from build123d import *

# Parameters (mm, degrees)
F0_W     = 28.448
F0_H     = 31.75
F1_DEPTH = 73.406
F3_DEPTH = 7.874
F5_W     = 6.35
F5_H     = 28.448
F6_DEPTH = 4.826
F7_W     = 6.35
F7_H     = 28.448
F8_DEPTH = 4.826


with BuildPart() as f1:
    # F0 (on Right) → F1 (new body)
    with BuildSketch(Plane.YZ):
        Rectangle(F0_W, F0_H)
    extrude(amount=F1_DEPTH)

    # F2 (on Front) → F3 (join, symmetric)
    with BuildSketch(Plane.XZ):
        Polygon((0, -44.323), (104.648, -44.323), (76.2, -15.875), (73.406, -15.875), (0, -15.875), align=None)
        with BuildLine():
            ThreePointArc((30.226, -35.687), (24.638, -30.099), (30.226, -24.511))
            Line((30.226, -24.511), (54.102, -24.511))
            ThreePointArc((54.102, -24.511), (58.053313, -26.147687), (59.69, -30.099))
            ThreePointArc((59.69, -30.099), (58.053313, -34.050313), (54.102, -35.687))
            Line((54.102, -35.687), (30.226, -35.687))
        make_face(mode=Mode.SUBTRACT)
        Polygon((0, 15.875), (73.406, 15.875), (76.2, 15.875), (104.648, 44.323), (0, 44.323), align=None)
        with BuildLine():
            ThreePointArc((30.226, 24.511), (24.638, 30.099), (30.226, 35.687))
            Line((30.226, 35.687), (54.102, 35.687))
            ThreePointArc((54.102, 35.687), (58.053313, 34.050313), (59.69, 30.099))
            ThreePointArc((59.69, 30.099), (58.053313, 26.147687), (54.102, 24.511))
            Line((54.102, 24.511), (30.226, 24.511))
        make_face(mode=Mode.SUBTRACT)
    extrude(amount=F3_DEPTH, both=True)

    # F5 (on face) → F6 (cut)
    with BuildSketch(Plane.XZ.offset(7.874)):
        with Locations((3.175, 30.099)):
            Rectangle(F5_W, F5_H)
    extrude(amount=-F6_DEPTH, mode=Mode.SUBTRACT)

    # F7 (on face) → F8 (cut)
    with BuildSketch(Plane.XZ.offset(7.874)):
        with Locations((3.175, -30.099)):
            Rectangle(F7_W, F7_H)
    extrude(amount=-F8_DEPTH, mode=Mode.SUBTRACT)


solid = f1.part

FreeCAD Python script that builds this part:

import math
import FreeCAD as App
import Part
import Sketcher
Q = App.Units.Quantity


def add_polygon(sketch, points):
    """Adds a closed chain of lines whose ends are joined by coincident constraints."""
    first, n = sketch.GeometryCount, len(points)
    for a, b in zip(points, points[1:] + points[:1]):
        sketch.addGeometry(Part.LineSegment(App.Vector(*a, 0), App.Vector(*b, 0)), False)
    for i in range(n):
        sketch.addConstraint(Sketcher.Constraint("Coincident", first + i, 2, first + (i + 1) % n, 1))

doc = App.newDocument("Part")
params = doc.addObject("Spreadsheet::Sheet", "Params")
for row, (alias, value) in enumerate([
    ("sketch1_width", "1.12 in"),
    ("sketch1_height", "1.25 in"),
    ("pad1_length", "2.89 in"),
    ("sketch2_width", "3 in"),
    ("sketch2_radius", "0.22 in"),
    ("sketch2_width2", "4.12 in"),
    ("sketch2_width3", "0.94 in"),
    ("pad2_length", "0.62 in"),
    ("sketch3_width", "0.25 in"),
    ("sketch3_height", "1.12 in"),
    ("pocket1_length", "0.19 in"),
    ("sketch4_width", "0.25 in"),
    ("sketch4_height", "1.12 in"),
    ("pocket2_length", "0.19 in"),
], start=1):
    params.set(f"A{row}", alias)
    params.set(f"B{row}", "=" + value)
    params.setAlias(f"B{row}", alias)

body = doc.addObject("PartDesign::Body", "Body")

# Sketch on YZ plane
sketch1 = body.newObject("Sketcher::SketchObject", "Sketch")
sketch1.AttachmentSupport = (doc.getObject("YZ_Plane"), [""])
sketch1.MapMode = "FlatFace"
add_polygon(sketch1, [(-14, 16), (-14, -16), (14, -16), (14, 16)])  # lines 0-3
sketch1.addConstraint([
    Sketcher.Constraint("Vertical", 0),
    Sketcher.Constraint("Horizontal", 1),
    Sketcher.Constraint("Vertical", 2),
    Sketcher.Constraint("Horizontal", 3),
    Sketcher.Constraint("Symmetric", 0, 2, 2, 2, -1, 1),
    Sketcher.Constraint("DistanceX", 1, 1, 1, 2, Q("1.12 in")),
    Sketcher.Constraint("DistanceY", 0, 2, 0, 1, Q("1.25 in")),
])
sketch1.setExpression("Constraints[9]", "Params.sketch1_width")
sketch1.setExpression("Constraints[10]", "Params.sketch1_height")
pad1 = body.newObject("PartDesign::Pad", "Pad")
pad1.Profile = sketch1
pad1.setExpression("Length", "Params.pad1_length")

# Sketch on XZ plane
sketch2 = body.newObject("Sketcher::SketchObject", "Sketch001")
sketch2.AttachmentSupport = (doc.getObject("XZ_Plane"), [""])
sketch2.MapMode = "FlatFace"
add_polygon(sketch2, [(0, -44), (105, -44), (76, -16), (0, -16)])  # lines 0-3
sketch2.addGeometry(Part.LineSegment(App.Vector(54, -36, 0), App.Vector(30, -36, 0)), False)  # 4
sketch2.addGeometry(Part.ArcOfCircle(Part.Circle(App.Vector(30, -30, 0), App.Vector(0, 0, 1), 6), math.radians(90), math.radians(270)), False)  # 5
sketch2.addGeometry(Part.LineSegment(App.Vector(30, -25, 0), App.Vector(54, -25, 0)), False)  # 6
sketch2.addGeometry(Part.ArcOfCircle(Part.Circle(App.Vector(54, -30, 0), App.Vector(0, 0, 1), 6), math.radians(0), math.radians(90)), False)  # 7
sketch2.addGeometry(Part.ArcOfCircle(Part.Circle(App.Vector(54, -30, 0), App.Vector(0, 0, 1), 6), math.radians(-90), math.radians(0)), False)  # 8
add_polygon(sketch2, [(0, 16), (76, 16), (105, 44), (0, 44)])  # lines 9-12
sketch2.addGeometry(Part.LineSegment(App.Vector(54, 25, 0), App.Vector(30, 25, 0)), False)  # 13
sketch2.addGeometry(Part.ArcOfCircle(Part.Circle(App.Vector(30, 30, 0), App.Vector(0, 0, 1), 6), math.radians(90), math.radians(270)), False)  # 14
sketch2.addGeometry(Part.LineSegment(App.Vector(30, 36, 0), App.Vector(54, 36, 0)), False)  # 15
sketch2.addGeometry(Part.ArcOfCircle(Part.Circle(App.Vector(54, 30, 0), App.Vector(0, 0, 1), 6), math.radians(0), math.radians(90)), False)  # 16
sketch2.addGeometry(Part.ArcOfCircle(Part.Circle(App.Vector(54, 30, 0), App.Vector(0, 0, 1), 6), math.radians(-90), math.radians(0)), False)  # 17
sketch2.addConstraint([
    Sketcher.Constraint("Tangent", 4, 2, 5, 2),
    Sketcher.Constraint("Tangent", 5, 1, 6, 1),
    Sketcher.Constraint("Tangent", 6, 2, 7, 2),
    Sketcher.Constraint("Tangent", 7, 1, 8, 2),
    Sketcher.Constraint("Tangent", 8, 1, 4, 1),
    Sketcher.Constraint("Tangent", 13, 2, 14, 2),
    Sketcher.Constraint("Tangent", 14, 1, 15, 1),
    Sketcher.Constraint("Tangent", 15, 2, 16, 2),
    Sketcher.Constraint("Tangent", 16, 1, 17, 2),
    Sketcher.Constraint("Tangent", 17, 1, 13, 1),
    Sketcher.Constraint("Horizontal", 0),
    Sketcher.Constraint("Horizontal", 2),
    Sketcher.Constraint("Vertical", 3),
    Sketcher.Constraint("Horizontal", 4),
    Sketcher.Constraint("Horizontal", 6),
    Sketcher.Constraint("Horizontal", 9),
    Sketcher.Constraint("Horizontal", 11),
    Sketcher.Constraint("Vertical", 12),
    Sketcher.Constraint("Horizontal", 13),
    Sketcher.Constraint("Horizontal", 15),
    Sketcher.Constraint("Equal", 5, 7),
    Sketcher.Constraint("Equal", 8, 14),
    Sketcher.Constraint("Equal", 14, 16),
    Sketcher.Constraint("Symmetric", 3, 2, 11, 2, -1, 1),
    Sketcher.Constraint("Symmetric", 5, 3, 14, 3, -1),
    Sketcher.Constraint("Symmetric", 1, 2, 9, 2, -1),
    Sketcher.Constraint("Symmetric", 7, 1, 16, 1, -1),
    Sketcher.Constraint("PointOnObject", 2, 2, -2),
    Sketcher.Constraint("Perpendicular", 1, 10),
    Sketcher.Constraint("Horizontal", 8, 3, 7, 1),
    Sketcher.Constraint("Vertical", 0, 2, 10, 2),
    Sketcher.Constraint("DistanceX", 2, 2, 2, 1, Q("3 in")),
    Sketcher.Constraint("Radius", 5, Q("0.22 in")),
    Sketcher.Constraint("DistanceX", 0, 1, 0, 2, Q("4.12 in")),
    Sketcher.Constraint("DistanceX", 4, 2, 4, 1, Q("0.94 in")),
    Sketcher.Constraint("DistanceX", -1, 1, 5, 3, Q("1.19 in")),
    Sketcher.Constraint("DistanceY", 5, 3, 14, 3, Q("2.37 in")),
    Sketcher.Constraint("DistanceY", 0, 2, 8, 3, Q("0.56 in")),
])
sketch2.setExpression("Constraints[39]", "Params.sketch2_width")
sketch2.setExpression("Constraints[40]", "Params.sketch2_radius")
sketch2.setExpression("Constraints[41]", "Params.sketch2_width2")
sketch2.setExpression("Constraints[42]", "Params.sketch2_width3")
pad2 = body.newObject("PartDesign::Pad", "Pad001")
pad2.Profile = sketch2
pad2.setExpression("Length", "Params.pad2_length")
pad2.Midplane = True

# Sketch on XZ plane
sketch3 = body.newObject("Sketcher::SketchObject", "Sketch002")
sketch3.AttachmentSupport = (doc.getObject("XZ_Plane"), [""])
sketch3.MapMode = "FlatFace"
sketch3.AttachmentOffset = App.Placement(App.Vector(0, 0, 0.31 * 25.4), App.Rotation())
add_polygon(sketch3, [(0, 44), (0, 16), (6, 16), (6, 44)])  # lines 0-3
sketch3.addConstraint([
    Sketcher.Constraint("Vertical", 0),
    Sketcher.Constraint("Horizontal", 1),
    Sketcher.Constraint("Vertical", 2),
    Sketcher.Constraint("Horizontal", 3),
    Sketcher.Constraint("PointOnObject", 0, 2, -2),
    Sketcher.Constraint("DistanceX", 1, 1, 1, 2, Q("0.25 in")),
    Sketcher.Constraint("DistanceY", 0, 2, 0, 1, Q("1.12 in")),
    Sketcher.Constraint("DistanceY", -1, 1, 0, 2, Q("0.625 in")),
])
sketch3.setExpression("Constraints[9]", "Params.sketch3_width")
sketch3.setExpression("Constraints[10]", "Params.sketch3_height")
pocket1 = body.newObject("PartDesign::Pocket", "Pocket")
pocket1.Profile = sketch3
pocket1.setExpression("Length", "Params.pocket1_length")

# Sketch on XZ plane
sketch4 = body.newObject("Sketcher::SketchObject", "Sketch003")
sketch4.AttachmentSupport = (doc.getObject("XZ_Plane"), [""])
sketch4.MapMode = "FlatFace"
sketch4.AttachmentOffset = App.Placement(App.Vector(0, 0, 0.31 * 25.4), App.Rotation())
add_polygon(sketch4, [(0, -16), (0, -44), (6, -44), (6, -16)])  # lines 0-3
sketch4.addConstraint([
    Sketcher.Constraint("Vertical", 0),
    Sketcher.Constraint("Horizontal", 1),
    Sketcher.Constraint("Vertical", 2),
    Sketcher.Constraint("Horizontal", 3),
    Sketcher.Constraint("PointOnObject", 0, 2, -2),
    Sketcher.Constraint("DistanceX", 1, 1, 1, 2, Q("0.25 in")),
    Sketcher.Constraint("DistanceY", 0, 2, 0, 1, Q("1.12 in")),
    Sketcher.Constraint("DistanceY", 0, 2, -1, 1, Q("1.745 in")),
])
sketch4.setExpression("Constraints[9]", "Params.sketch4_width")
sketch4.setExpression("Constraints[10]", "Params.sketch4_height")
pocket2 = body.newObject("PartDesign::Pocket", "Pocket001")
pocket2.Profile = sketch4
pocket2.setExpression("Length", "Params.pocket2_length")

doc.recompute()
